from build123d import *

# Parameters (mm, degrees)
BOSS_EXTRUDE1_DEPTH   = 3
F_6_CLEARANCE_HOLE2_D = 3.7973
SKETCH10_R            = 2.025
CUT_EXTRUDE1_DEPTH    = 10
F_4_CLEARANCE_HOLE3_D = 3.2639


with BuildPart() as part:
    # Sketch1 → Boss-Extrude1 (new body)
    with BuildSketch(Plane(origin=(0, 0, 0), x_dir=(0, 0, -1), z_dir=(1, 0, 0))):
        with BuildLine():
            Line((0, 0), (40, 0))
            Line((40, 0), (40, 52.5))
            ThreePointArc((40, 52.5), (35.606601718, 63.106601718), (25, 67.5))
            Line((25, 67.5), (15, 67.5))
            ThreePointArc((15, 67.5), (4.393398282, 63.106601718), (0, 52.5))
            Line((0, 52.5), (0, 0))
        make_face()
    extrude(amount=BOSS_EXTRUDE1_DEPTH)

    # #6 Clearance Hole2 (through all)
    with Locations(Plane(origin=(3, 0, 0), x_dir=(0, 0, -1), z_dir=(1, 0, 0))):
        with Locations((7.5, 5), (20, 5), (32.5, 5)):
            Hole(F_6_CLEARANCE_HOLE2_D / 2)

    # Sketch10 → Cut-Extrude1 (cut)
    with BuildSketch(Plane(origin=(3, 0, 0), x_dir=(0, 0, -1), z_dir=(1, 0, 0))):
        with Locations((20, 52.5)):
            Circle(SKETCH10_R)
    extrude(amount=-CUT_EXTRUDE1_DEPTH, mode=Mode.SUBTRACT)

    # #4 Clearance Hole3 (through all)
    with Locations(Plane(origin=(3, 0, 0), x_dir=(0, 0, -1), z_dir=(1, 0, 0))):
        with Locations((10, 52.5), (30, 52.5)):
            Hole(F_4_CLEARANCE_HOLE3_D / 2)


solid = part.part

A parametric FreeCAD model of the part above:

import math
import FreeCAD as App
import Part
import Sketcher
Q = App.Units.Quantity

doc = App.newDocument("Part")
body = doc.addObject("PartDesign::Body", "Body")

sketch1 = doc.addObject("Sketcher::SketchObject", "Sketch")
body.addObject(sketch1)
sketch1.AttachmentSupport = (doc.YZ_Plane, [""])
sketch1.MapMode = "FlatFace"
sketch1.addGeometry([
    Part.LineSegment(App.Vector(0, 0, 0), App.Vector(0, -40, 0)),
    Part.LineSegment(App.Vector(0, -40, 0), App.Vector(52, -40, 0)),
    Part.ArcOfCircle(Part.Circle(App.Vector(53, -25, 0), App.Vector(0, 0, 1), 15), math.radians(-90), math.radians(0)),
    Part.LineSegment(App.Vector(68, -25, 0), App.Vector(68, -15, 0)),
    Part.ArcOfCircle(Part.Circle(App.Vector(53, -15, 0), App.Vector(0, 0, 1), 15), math.radians(0), math.radians(90)),
    Part.LineSegment(App.Vector(52, 0, 0), App.Vector(0, 0, 0)),
], False)
sketch1.addConstraint([
    Sketcher.Constraint("Coincident", 0, 2, 1, 1),
    Sketcher.Constraint("Tangent", 1, 2, 2, 1),
    Sketcher.Constraint("Tangent", 2, 2, 3, 1),
    Sketcher.Constraint("Tangent", 3, 2, 4, 1),
    Sketcher.Constraint("Tangent", 4, 2, 5, 1),
    Sketcher.Constraint("Coincident", 5, 2, 0, 1),
    Sketcher.Constraint("Vertical", 0),
    Sketcher.Constraint("Horizontal", 1),
    Sketcher.Constraint("Vertical", 3),
    Sketcher.Constraint("Horizontal", 5),
    Sketcher.Constraint("Coincident", 5, 2, -1, 1),
    Sketcher.Constraint("Equal", 2, 4),
    Sketcher.Constraint("Radius", 2, Q("15 mm")),
    Sketcher.Constraint("DistanceY", 0, 2, 0, 1, Q("40 mm")),
    Sketcher.Constraint("DistanceX", 1, 1, 1, 2, Q("52.5 mm")),
])
pad1 = doc.addObject("PartDesign::Pad", "Pad")
body.addObject(pad1)
pad1.Profile = sketch1
pad1.Length = 3

sketch2 = doc.addObject("Sketcher::SketchObject", "Sketch001")
body.addObject(sketch2)
sketch2.AttachmentSupport = (doc.YZ_Plane, [""])
sketch2.MapMode = "FlatFace"
sketch2.AttachmentOffset = App.Placement(App.Vector(0, 0, 3), App.Rotation())
sketch2.addGeometry([
    Part.Circle(App.Vector(5, -7.5, 0), App.Vector(0, 0, 1), 1.9),
    Part.Circle(App.Vector(5, -20, 0), App.Vector(0, 0, 1), 1.9),
    Part.Circle(App.Vector(5, -32.5, 0), App.Vector(0, 0, 1), 1.9),
], False)
sketch2.addConstraint([
    Sketcher.Constraint("Equal", 0, 1),
    Sketcher.Constraint("Equal", 1, 2),
    Sketcher.Constraint("Vertical", 0, 3, 1, 3),
    Sketcher.Constraint("Vertical", 1, 3, 2, 3),
    Sketcher.Constraint("DistanceX", -1, 1, 0, 3, Q("5 mm")),
    Sketcher.Constraint("DistanceY", 1, 3, -1, 1, Q("20 mm")),
    Sketcher.Constraint("DistanceY", 2, 3, 0, 3, Q("25 mm")),
    Sketcher.Constraint("Diameter", 0, Q("3.7973 mm")),
    Sketcher.Constraint("DistanceY", 0, 3, -1, 1, Q("7.5 mm")),
])
doc.recompute()
hole = doc.addObject("PartDesign::Hole", "Hole")
body.addObject(hole)
hole.Profile = sketch2
hole.ThreadType = "None"
hole.Diameter = 3.7973
hole.DepthType = "ThroughAll"

sketch3 = doc.addObject("Sketcher::SketchObject", "Sketch002")
body.addObject(sketch3)
sketch3.AttachmentSupport = (doc.YZ_Plane, [""])
sketch3.MapMode = "FlatFace"
sketch3.AttachmentOffset = App.Placement(App.Vector(0, 0, 3), App.Rotation())
sketch3.addGeometry(Part.Circle(App.Vector(52.5, -20, 0), App.Vector(0, 0, 1), 2), False)
sketch3.addConstraint([
    Sketcher.Constraint("Diameter", 0, Q("4.05 mm")),
    Sketcher.Constraint("DistanceY", 0, 3, -1, 1, Q("20 mm")),
    Sketcher.Constraint("DistanceX", -1, 1, 0, 3, Q("52.5 mm")),
])
pocket1 = doc.addObject("PartDesign::Pocket", "Pocket")
body.addObject(pocket1)
pocket1.Profile = sketch3
pocket1.Length = 10

sketch4 = doc.addObject("Sketcher::SketchObject", "Sketch003")
body.addObject(sketch4)
sketch4.AttachmentSupport = (doc.YZ_Plane, [""])
sketch4.MapMode = "FlatFace"
sketch4.AttachmentOffset = App.Placement(App.Vector(0, 0, 3), App.Rotation())
sketch4.addGeometry([
    Part.Circle(App.Vector(52.5, -10, 0), App.Vector(0, 0, 1), 1.6),
    Part.Circle(App.Vector(52.5, -30, 0), App.Vector(0, 0, 1), 1.6),
], False)
sketch4.addConstraint([
    Sketcher.Constraint("Equal", 0, 1),
    Sketcher.Constraint("Vertical", 0, 3, 1, 3),
    Sketcher.Constraint("DistanceY", 0, 3, -1, 1, Q("10 mm")),
    Sketcher.Constraint("DistanceY", 1, 3, -1, 1, Q("30 mm")),
    Sketcher.Constraint("Diameter", 0, Q("3.2639 mm")),
    Sketcher.Constraint("DistanceX", -1, 1, 0, 3, Q("52.5 mm")),
])
doc.recompute()
hole2 = doc.addObject("PartDesign::Hole", "Hole001")
body.addObject(hole2)
hole2.Profile = sketch4
hole2.ThreadType = "None"
hole2.Diameter = 3.2639
hole2.DepthType = "ThroughAll"

doc.recompute()
